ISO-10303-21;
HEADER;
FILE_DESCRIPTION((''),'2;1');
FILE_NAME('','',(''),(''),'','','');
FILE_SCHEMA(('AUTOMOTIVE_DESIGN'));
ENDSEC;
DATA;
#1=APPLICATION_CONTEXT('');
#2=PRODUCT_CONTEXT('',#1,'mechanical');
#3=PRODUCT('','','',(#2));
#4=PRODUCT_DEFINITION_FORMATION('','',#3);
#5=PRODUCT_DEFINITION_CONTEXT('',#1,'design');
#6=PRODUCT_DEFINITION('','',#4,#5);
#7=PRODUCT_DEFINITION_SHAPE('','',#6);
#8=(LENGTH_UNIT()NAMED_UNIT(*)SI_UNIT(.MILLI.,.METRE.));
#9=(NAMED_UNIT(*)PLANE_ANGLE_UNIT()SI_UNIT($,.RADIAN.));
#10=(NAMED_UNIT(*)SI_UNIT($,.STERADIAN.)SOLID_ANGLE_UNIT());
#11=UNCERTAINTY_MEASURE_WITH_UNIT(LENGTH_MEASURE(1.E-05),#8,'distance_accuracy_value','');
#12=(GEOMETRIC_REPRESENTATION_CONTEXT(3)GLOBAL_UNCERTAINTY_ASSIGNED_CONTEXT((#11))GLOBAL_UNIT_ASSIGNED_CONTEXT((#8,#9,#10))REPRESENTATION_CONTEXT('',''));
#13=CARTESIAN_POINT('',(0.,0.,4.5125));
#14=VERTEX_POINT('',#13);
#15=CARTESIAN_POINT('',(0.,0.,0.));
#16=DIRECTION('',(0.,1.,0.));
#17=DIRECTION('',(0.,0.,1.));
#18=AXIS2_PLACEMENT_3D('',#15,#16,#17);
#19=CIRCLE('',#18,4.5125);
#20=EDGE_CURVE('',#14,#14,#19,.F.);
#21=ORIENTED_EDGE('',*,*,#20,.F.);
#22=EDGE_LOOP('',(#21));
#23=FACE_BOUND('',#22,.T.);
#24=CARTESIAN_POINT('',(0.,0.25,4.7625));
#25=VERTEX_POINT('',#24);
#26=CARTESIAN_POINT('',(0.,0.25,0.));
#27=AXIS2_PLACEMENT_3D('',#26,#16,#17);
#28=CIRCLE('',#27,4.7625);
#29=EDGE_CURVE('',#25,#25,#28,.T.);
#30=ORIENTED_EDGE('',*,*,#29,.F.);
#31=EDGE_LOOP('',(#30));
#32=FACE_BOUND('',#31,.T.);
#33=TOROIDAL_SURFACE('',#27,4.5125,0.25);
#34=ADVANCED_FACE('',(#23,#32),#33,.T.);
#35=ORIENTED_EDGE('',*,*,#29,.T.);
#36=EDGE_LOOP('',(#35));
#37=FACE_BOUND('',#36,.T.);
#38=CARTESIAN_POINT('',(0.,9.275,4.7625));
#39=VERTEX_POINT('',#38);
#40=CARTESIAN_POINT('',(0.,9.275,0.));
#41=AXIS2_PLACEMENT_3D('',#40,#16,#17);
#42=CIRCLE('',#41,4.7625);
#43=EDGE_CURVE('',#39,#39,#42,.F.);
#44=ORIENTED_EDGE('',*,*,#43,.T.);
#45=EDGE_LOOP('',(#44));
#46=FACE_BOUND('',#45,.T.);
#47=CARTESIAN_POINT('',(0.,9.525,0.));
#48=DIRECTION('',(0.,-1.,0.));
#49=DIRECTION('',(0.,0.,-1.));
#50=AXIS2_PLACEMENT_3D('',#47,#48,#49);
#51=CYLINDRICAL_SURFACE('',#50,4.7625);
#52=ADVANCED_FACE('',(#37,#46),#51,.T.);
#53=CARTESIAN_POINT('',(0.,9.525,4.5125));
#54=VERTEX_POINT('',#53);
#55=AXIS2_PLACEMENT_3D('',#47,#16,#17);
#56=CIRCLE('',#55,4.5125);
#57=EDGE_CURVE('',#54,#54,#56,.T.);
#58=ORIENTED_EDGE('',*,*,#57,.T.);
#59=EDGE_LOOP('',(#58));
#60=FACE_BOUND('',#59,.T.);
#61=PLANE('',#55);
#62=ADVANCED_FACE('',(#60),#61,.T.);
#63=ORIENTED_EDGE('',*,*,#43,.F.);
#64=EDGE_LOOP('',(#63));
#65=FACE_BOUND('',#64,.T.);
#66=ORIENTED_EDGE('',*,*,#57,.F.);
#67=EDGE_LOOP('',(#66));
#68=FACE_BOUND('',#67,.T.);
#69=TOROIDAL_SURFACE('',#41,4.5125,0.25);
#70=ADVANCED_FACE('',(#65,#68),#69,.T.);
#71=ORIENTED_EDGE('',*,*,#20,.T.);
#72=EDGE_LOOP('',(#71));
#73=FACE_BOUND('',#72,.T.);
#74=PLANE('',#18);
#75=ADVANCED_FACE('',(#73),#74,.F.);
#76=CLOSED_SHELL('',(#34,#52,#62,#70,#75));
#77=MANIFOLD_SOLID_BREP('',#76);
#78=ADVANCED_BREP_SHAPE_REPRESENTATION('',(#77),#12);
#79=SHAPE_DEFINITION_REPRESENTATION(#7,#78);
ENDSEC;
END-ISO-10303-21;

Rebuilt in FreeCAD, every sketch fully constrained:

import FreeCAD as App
import Part
import Sketcher
from FreeCAD import Vector
Q = App.Units.Quantity


def edges_at(feature, points):
    """Names of the edges that pass closest to the given points."""
    edges = feature.Shape.Edges
    near = lambda p: min(range(len(edges)), key=lambda i: edges[i].distToShape(Part.Vertex(*p))[0])
    return sorted({f"Edge{near(p) + 1}" for p in points})

doc = App.newDocument("Part")
params = doc.addObject("Spreadsheet::Sheet", "Params")
for row, (alias, value) in enumerate([
    ("sketch1_diameter", "0.375 in"),
    ("pad1_length", "0.375 in"),
    ("fillet_radius", "0.25 mm"),
], start=1):
    params.set(f"A{row}", alias)
    params.set(f"B{row}", "=" + value)
    params.setAlias(f"B{row}", alias)

body = doc.addObject("PartDesign::Body", "Body")

# Sketch on XZ plane
sketch1 = body.newObject("Sketcher::SketchObject", "Sketch")
sketch1.AttachmentSupport = (doc.getObject("XZ_Plane"), [""])
sketch1.MapMode = "FlatFace"
sketch1.addGeometry(Part.Circle(Vector(0, 0, 0), Vector(0, 0, 1), 4.8), False)
sketch1.addConstraint([
    Sketcher.Constraint("Coincident", 0, 3, -1, 1),
    Sketcher.Constraint("Diameter", 0, Q("0.375 in")),
])
sketch1.setExpression("Constraints[1]", "Params.sketch1_diameter")
pad1 = body.newObject("PartDesign::Pad", "Pad")
pad1.Profile = sketch1
pad1.setExpression("Length", "Params.pad1_length")
pad1.Reversed = True
doc.recompute()

fillet = body.newObject("PartDesign::Fillet", "Fillet")
fillet.Base = (pad1, edges_at(pad1, [(-4.763, 0, 0), (-4.763, 9.525, 0)]))
fillet.setExpression("Radius", "Params.fillet_radius")

doc.recompute()
